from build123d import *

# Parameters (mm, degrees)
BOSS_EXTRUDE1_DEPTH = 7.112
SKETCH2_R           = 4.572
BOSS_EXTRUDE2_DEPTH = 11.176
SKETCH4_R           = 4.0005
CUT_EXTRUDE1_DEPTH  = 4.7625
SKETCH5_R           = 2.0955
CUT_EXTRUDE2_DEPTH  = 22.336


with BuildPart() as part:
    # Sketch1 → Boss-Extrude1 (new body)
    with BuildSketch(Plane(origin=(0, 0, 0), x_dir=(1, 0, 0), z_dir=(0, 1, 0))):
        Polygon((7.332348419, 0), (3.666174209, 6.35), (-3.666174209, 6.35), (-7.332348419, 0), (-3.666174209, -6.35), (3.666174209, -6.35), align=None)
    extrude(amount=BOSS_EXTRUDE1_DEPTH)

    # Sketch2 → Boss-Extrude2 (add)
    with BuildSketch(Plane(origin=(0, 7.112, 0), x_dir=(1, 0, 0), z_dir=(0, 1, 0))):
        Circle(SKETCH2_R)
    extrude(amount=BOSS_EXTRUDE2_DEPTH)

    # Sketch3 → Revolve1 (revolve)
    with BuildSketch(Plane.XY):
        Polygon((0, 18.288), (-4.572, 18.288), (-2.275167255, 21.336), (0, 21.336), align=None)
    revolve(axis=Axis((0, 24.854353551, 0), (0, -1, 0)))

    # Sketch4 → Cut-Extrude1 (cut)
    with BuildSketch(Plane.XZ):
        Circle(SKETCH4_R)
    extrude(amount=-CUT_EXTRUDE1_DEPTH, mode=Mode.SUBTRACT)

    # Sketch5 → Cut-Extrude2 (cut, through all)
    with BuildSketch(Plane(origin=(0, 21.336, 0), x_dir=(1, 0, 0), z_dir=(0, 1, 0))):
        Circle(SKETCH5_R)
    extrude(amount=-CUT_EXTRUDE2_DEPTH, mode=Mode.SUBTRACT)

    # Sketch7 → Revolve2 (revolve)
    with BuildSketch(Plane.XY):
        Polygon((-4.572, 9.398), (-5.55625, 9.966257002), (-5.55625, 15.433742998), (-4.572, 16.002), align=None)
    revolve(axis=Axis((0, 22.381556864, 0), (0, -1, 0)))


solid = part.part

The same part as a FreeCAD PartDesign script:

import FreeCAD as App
import Part
import Sketcher
Q = App.Units.Quantity


def add_polygon(sketch, points):
    """Adds a closed chain of lines whose ends are joined by coincident constraints."""
    first, n = sketch.GeometryCount, len(points)
    for a, b in zip(points, points[1:] + points[:1]):
        sketch.addGeometry(Part.LineSegment(App.Vector(*a, 0), App.Vector(*b, 0)), False)
    for i in range(n):
        sketch.addConstraint(Sketcher.Constraint("Coincident", first + i, 2, first + (i + 1) % n, 1))

doc = App.newDocument("Part")
body = doc.addObject("PartDesign::Body", "Body")

# Sketch on XZ plane
sketch1 = doc.addObject("Sketcher::SketchObject", "Sketch")
body.addObject(sketch1)
sketch1.AttachmentSupport = (doc.XZ_Plane, [""])
sketch1.MapMode = "FlatFace"
add_polygon(sketch1, [(7, 0), (4, -6), (-4, -6), (-7, 0), (-4, 6), (4, 6)])  # lines 0-5
sketch1.addConstraint(Sketcher.Constraint("Horizontal", 1))
sketch1.addConstraint(Sketcher.Constraint("Horizontal", 4))
sketch1.addConstraint(Sketcher.Constraint("Symmetric", 0, 2, 3, 2, -1, 1))
sketch1.addConstraint(Sketcher.Constraint("Symmetric", 2, 2, 5, 2, -1, 1))
sketch1.addConstraint(Sketcher.Constraint("PointOnObject", 2, 2, -1))
sketch1.addConstraint(Sketcher.Constraint("Parallel", 2, 5))
sketch1.addConstraint(Sketcher.Constraint("Vertical", 1, 2, 3, 2))
sketch1.addConstraint(Sketcher.Constraint("Angle", 0, Q("-120 deg")))
sketch1.addConstraint(Sketcher.Constraint("DistanceY", 1, 2, 3, 2, Q("0.5 in")))
sketch1.addConstraint(Sketcher.Constraint("DistanceX", 1, 2, 1, 1, 7.332348))
pad1 = doc.addObject("PartDesign::Pad", "Pad")
body.addObject(pad1)
pad1.Profile = sketch1
pad1.Length = Q("0.28 in")
pad1.Reversed = True

# Sketch on XZ plane
sketch2 = doc.addObject("Sketcher::SketchObject", "Sketch001")
body.addObject(sketch2)
sketch2.AttachmentSupport = (doc.XZ_Plane, [""])
sketch2.MapMode = "FlatFace"
sketch2.AttachmentOffset = App.Placement(App.Vector(0, 0, -0.28 * 25.4), App.Rotation())
sketch2.addGeometry(Part.Circle(App.Vector(0, 0, 0), App.Vector(0, 0, 1), 4.6), False)
sketch2.addConstraint(Sketcher.Constraint("Coincident", 0, 3, -1, 1))
sketch2.addConstraint(Sketcher.Constraint("Diameter", 0, Q("0.36 in")))
pad2 = doc.addObject("PartDesign::Pad", "Pad001")
body.addObject(pad2)
pad2.Profile = sketch2
pad2.Length = Q("0.44 in")
pad2.Reversed = True

# Sketch on XY plane
sketch3 = doc.addObject("Sketcher::SketchObject", "Sketch002")
body.addObject(sketch3)
sketch3.AttachmentSupport = (doc.XY_Plane, [""])
sketch3.MapMode = "FlatFace"
add_polygon(sketch3, [(-4.6, 18.3), (0, 18.3), (0, 21.3), (-2.3, 21.3)])  # lines 0-3
sketch3.addConstraint(Sketcher.Constraint("Horizontal", 0))
sketch3.addConstraint(Sketcher.Constraint("Vertical", 1))
sketch3.addConstraint(Sketcher.Constraint("Horizontal", 2))
sketch3.addConstraint(Sketcher.Constraint("PointOnObject", 0, 2, -2))
sketch3.addConstraint(Sketcher.Constraint("Angle", 3, Q("-127 deg")))
sketch3.addConstraint(Sketcher.Constraint("DistanceX", 0, 1, 0, 2, Q("0.18 in")))
sketch3.addConstraint(Sketcher.Constraint("DistanceY", 1, 1, 1, 2, Q("0.12 in")))
sketch3.addConstraint(Sketcher.Constraint("DistanceY", -1, 1, 0, 2, Q("0.72 in")))
revolution = doc.addObject("PartDesign::Revolution", "Revolution")
body.addObject(revolution)
revolution.Profile = sketch3
revolution.ReferenceAxis = (sketch3, ["V_Axis"])
revolution.Angle = 360

# Sketch on XZ plane
sketch4 = doc.addObject("Sketcher::SketchObject", "Sketch003")
body.addObject(sketch4)
sketch4.AttachmentSupport = (doc.XZ_Plane, [""])
sketch4.MapMode = "FlatFace"
sketch4.addGeometry(Part.Circle(App.Vector(0, 0, 0), App.Vector(0, 0, 1), 4), False)
sketch4.addConstraint(Sketcher.Constraint("Coincident", 0, 3, -1, 1))
sketch4.addConstraint(Sketcher.Constraint("Diameter", 0, Q("0.315 in")))
pocket1 = doc.addObject("PartDesign::Pocket", "Pocket")
body.addObject(pocket1)
pocket1.Profile = sketch4
pocket1.Length = Q("0.1875 in")

# Sketch on XZ plane
sketch5 = doc.addObject("Sketcher::SketchObject", "Sketch004")
body.addObject(sketch5)
sketch5.AttachmentSupport = (doc.XZ_Plane, [""])
sketch5.MapMode = "FlatFace"
sketch5.AttachmentOffset = App.Placement(App.Vector(0, 0, -0.84 * 25.4), App.Rotation())
sketch5.addGeometry(Part.Circle(App.Vector(0, 0, 0), App.Vector(0, 0, 1), 2.1), False)
sketch5.addConstraint(Sketcher.Constraint("Coincident", 0, 3, -1, 1))
sketch5.addConstraint(Sketcher.Constraint("Diameter", 0, Q("0.165 in")))
pocket2 = doc.addObject("PartDesign::Pocket", "Pocket001")
body.addObject(pocket2)
pocket2.Profile = sketch5
pocket2.Type = "ThroughAll"
pocket2.Reversed = True

# Sketch on XY plane
sketch6 = doc.addObject("Sketcher::SketchObject", "Sketch005")
body.addObject(sketch6)
sketch6.AttachmentSupport = (doc.XY_Plane, [""])
sketch6.MapMode = "FlatFace"
add_polygon(sketch6, [(-5.6, 10), (-4.6, 9.4), (-4.6, 16), (-5.6, 15.4)])  # lines 0-3
sketch6.addConstraint(Sketcher.Constraint("Vertical", 1))
sketch6.addConstraint(Sketcher.Constraint("Vertical", 3))
sketch6.addConstraint(Sketcher.Constraint("Equal", 0, 2))
sketch6.addConstraint(Sketcher.Constraint("Angle", 0, Q("-30 deg")))
sketch6.addConstraint(Sketcher.Constraint("DistanceY", 1, 1, 1, 2, Q("0.26 in")))
sketch6.addConstraint(Sketcher.Constraint("DistanceX", 0, 2, -1, 1, Q("0.18 in")))
sketch6.addConstraint(Sketcher.Constraint("DistanceY", -1, 1, 0, 2, Q("0.37 in")))
sketch6.addConstraint(Sketcher.Constraint("DistanceX", 2, 2, -1, 1, Q("0.21875 in")))
revolution2 = doc.addObject("PartDesign::Revolution", "Revolution001")
body.addObject(revolution2)
revolution2.Profile = sketch6
revolution2.ReferenceAxis = (sketch6, ["V_Axis"])
revolution2.Angle = 360

doc.recompute()
